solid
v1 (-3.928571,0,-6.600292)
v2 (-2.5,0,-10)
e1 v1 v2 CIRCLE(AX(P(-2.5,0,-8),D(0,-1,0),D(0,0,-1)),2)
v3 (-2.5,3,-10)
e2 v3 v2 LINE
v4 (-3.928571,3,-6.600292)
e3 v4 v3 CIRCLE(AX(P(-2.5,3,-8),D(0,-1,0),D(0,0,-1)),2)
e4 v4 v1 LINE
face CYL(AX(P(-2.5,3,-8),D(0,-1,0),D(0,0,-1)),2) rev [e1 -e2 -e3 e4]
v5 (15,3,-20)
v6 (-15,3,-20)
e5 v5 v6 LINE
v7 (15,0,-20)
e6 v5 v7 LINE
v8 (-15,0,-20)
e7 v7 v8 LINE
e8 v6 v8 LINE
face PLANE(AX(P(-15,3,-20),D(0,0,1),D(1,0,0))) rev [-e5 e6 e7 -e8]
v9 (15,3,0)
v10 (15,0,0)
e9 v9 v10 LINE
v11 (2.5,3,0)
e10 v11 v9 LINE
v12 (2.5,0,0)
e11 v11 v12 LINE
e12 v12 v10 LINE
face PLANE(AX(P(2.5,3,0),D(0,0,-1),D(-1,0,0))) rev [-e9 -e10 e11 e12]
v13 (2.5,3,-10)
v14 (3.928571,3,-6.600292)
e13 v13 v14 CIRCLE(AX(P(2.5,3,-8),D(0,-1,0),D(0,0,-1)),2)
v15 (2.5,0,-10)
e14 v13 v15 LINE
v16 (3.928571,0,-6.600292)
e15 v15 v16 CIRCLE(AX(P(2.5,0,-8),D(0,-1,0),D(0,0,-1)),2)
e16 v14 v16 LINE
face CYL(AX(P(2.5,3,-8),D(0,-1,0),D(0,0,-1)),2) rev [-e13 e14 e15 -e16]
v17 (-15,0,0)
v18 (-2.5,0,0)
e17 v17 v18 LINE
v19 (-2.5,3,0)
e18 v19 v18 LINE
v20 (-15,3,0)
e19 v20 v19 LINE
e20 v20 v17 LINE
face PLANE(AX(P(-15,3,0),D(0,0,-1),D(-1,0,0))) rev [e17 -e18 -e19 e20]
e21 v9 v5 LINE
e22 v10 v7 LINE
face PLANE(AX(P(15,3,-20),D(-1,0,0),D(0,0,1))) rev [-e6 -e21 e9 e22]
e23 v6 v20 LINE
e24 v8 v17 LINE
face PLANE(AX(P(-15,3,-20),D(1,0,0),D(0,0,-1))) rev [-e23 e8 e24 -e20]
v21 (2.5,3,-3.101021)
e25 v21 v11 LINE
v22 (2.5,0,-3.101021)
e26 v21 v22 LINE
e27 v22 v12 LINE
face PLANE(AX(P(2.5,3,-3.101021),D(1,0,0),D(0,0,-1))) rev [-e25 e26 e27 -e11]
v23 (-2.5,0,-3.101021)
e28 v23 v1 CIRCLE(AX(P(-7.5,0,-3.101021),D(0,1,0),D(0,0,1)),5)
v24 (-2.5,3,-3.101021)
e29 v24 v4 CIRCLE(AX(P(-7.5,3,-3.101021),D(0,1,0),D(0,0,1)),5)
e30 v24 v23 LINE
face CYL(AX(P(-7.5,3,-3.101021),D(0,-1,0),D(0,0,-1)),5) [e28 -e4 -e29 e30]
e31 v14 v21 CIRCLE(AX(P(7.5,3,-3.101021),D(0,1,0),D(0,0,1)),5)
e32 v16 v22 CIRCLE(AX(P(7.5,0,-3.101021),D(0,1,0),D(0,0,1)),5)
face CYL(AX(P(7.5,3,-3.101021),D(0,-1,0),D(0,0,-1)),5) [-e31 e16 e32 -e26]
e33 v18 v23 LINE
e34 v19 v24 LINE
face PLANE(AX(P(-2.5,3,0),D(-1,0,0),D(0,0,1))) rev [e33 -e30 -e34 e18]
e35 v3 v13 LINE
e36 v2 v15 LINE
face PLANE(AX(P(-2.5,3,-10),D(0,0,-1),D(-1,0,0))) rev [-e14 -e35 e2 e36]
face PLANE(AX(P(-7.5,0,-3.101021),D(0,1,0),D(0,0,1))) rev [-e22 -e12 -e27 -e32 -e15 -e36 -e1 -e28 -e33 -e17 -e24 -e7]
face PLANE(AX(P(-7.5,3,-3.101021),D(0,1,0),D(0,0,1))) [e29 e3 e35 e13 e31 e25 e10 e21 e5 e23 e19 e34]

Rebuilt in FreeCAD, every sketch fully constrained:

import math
import FreeCAD as App
import Part
import Sketcher
Q = App.Units.Quantity

doc = App.newDocument("Part")
body = doc.addObject("PartDesign::Body", "Body")

# Sketch on XZ plane
sketch1 = body.newObject("Sketcher::SketchObject", "Sketch")
sketch1.AttachmentSupport = (doc.getObject("XZ_Plane"), [""])
sketch1.MapMode = "FlatFace"
sketch1.addGeometry(Part.LineSegment(App.Vector(-2.5, 0, 0), App.Vector(-2.5, -3.101021, 0)), False)
sketch1.addGeometry(Part.ArcOfCircle(Part.Circle(App.Vector(-7.5, -3.101021, 0), App.Vector(0, 0, 1), 5), math.radians(-44.415309), math.radians(0)), False)
sketch1.addGeometry(Part.ArcOfCircle(Part.Circle(App.Vector(-2.5, -8, 0), App.Vector(0, 0, 1), 2), math.radians(135.584691), math.radians(270)), False)
sketch1.addGeometry(Part.LineSegment(App.Vector(-2.5, -10, 0), App.Vector(2.5, -10, 0)), False)
sketch1.addGeometry(Part.ArcOfCircle(Part.Circle(App.Vector(2.5, -8, 0), App.Vector(0, 0, 1), 2), math.radians(-90), math.radians(44.415309)), False)
sketch1.addGeometry(Part.ArcOfCircle(Part.Circle(App.Vector(7.5, -3.101021, 0), App.Vector(0, 0, 1), 5), math.radians(180), math.radians(224.415309)), False)
sketch1.addGeometry(Part.LineSegment(App.Vector(2.5, -3.101021, 0), App.Vector(2.5, 0, 0)), False)
sketch1.addGeometry(Part.LineSegment(App.Vector(2.5, 0, 0), App.Vector(15, 0, 0)), False)
sketch1.addGeometry(Part.LineSegment(App.Vector(15, 0, 0), App.Vector(15, -20, 0)), False)
sketch1.addGeometry(Part.LineSegment(App.Vector(15, -20, 0), App.Vector(-15, -20, 0)), False)
sketch1.addGeometry(Part.LineSegment(App.Vector(-15, -20, 0), App.Vector(-15, 0, 0)), False)
sketch1.addGeometry(Part.LineSegment(App.Vector(-15, 0, 0), App.Vector(-2.5, 0, 0)), False)
sketch1.addConstraint(Sketcher.Constraint("Tangent", 0, 2, 1, 2))
sketch1.addConstraint(Sketcher.Constraint("Tangent", 1, 1, 2, 1))
sketch1.addConstraint(Sketcher.Constraint("Tangent", 2, 2, 3, 1))
sketch1.addConstraint(Sketcher.Constraint("Tangent", 3, 2, 4, 1))
sketch1.addConstraint(Sketcher.Constraint("Tangent", 4, 2, 5, 2))
sketch1.addConstraint(Sketcher.Constraint("Tangent", 5, 1, 6, 1))
sketch1.addConstraint(Sketcher.Constraint("Coincident", 6, 2, 7, 1))
sketch1.addConstraint(Sketcher.Constraint("Coincident", 7, 2, 8, 1))
sketch1.addConstraint(Sketcher.Constraint("Coincident", 8, 2, 9, 1))
sketch1.addConstraint(Sketcher.Constraint("Coincident", 9, 2, 10, 1))
sketch1.addConstraint(Sketcher.Constraint("Coincident", 10, 2, 11, 1))
sketch1.addConstraint(Sketcher.Constraint("Coincident", 11, 2, 0, 1))
sketch1.addConstraint(Sketcher.Constraint("Vertical", 0))
sketch1.addConstraint(Sketcher.Constraint("Horizontal", 3))
sketch1.addConstraint(Sketcher.Constraint("Vertical", 6))
sketch1.addConstraint(Sketcher.Constraint("Horizontal", 7))
sketch1.addConstraint(Sketcher.Constraint("Vertical", 8))
sketch1.addConstraint(Sketcher.Constraint("Horizontal", 9))
sketch1.addConstraint(Sketcher.Constraint("Vertical", 10))
sketch1.addConstraint(Sketcher.Constraint("Horizontal", 11))
sketch1.addConstraint(Sketcher.Constraint("Equal", 2, 4))
sketch1.addConstraint(Sketcher.Constraint("Equal", 1, 5))
sketch1.addConstraint(Sketcher.Constraint("Symmetric", 7, 2, 10, 2, -1, 1))
sketch1.addConstraint(Sketcher.Constraint("Symmetric", 1, 3, 5, 3, -2))
sketch1.addConstraint(Sketcher.Constraint("PointOnObject", 6, 2, -1))
sketch1.addConstraint(Sketcher.Constraint("Vertical", 2, 3, 0, 2))
sketch1.addConstraint(Sketcher.Constraint("Radius", 1, Q("5 mm")))
sketch1.addConstraint(Sketcher.Constraint("Radius", 2, Q("2 mm")))
sketch1.addConstraint(Sketcher.Constraint("DistanceX", 3, 1, 3, 2, Q("5 mm")))
sketch1.addConstraint(Sketcher.Constraint("DistanceX", 9, 2, 9, 1, Q("30 mm")))
sketch1.addConstraint(Sketcher.Constraint("DistanceY", 8, 2, 8, 1, Q("20 mm")))
sketch1.addConstraint(Sketcher.Constraint("DistanceY", 2, 3, -1, 1, Q("8 mm")))
pad1 = body.newObject("PartDesign::Pad", "Pad")
pad1.Profile = sketch1
pad1.Length = 3
pad1.Reversed = True

doc.recompute()
